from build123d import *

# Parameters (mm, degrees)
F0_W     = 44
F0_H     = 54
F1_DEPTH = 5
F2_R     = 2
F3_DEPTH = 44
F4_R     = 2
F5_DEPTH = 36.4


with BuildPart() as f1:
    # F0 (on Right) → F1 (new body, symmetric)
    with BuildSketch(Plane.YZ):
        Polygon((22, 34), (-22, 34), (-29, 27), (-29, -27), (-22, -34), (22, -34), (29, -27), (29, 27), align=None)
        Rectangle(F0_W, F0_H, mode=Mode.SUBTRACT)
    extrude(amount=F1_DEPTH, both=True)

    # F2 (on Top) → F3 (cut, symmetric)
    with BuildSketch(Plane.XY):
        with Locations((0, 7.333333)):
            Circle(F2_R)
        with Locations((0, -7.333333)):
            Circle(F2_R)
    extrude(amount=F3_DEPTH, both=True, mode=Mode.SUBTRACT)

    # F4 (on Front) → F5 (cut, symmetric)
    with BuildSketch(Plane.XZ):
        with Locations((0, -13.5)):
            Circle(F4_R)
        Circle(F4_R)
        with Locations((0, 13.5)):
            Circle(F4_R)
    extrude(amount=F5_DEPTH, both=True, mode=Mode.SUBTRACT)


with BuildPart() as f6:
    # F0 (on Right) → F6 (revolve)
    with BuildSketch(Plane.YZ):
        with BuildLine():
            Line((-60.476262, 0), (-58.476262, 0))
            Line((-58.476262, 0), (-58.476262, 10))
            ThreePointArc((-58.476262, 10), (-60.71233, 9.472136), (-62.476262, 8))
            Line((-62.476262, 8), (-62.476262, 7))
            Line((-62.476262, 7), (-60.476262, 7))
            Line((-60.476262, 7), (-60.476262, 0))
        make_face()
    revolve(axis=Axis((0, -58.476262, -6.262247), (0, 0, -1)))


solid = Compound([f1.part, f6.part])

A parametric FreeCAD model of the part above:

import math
import FreeCAD as App
import Part
import Sketcher
Q = App.Units.Quantity

doc = App.newDocument("Part")
body = doc.addObject("PartDesign::Body", "Body")

# Sketch on YZ plane
sketch1 = body.newObject("Sketcher::SketchObject", "Sketch")
sketch1.AttachmentSupport = (doc.getObject("YZ_Plane"), [""])
sketch1.MapMode = "FlatFace"
sketch1.addGeometry(Part.LineSegment(App.Vector(22, 34, 0), App.Vector(-22, 34, 0)), False)
sketch1.addGeometry(Part.LineSegment(App.Vector(-22, 34, 0), App.Vector(-29, 27, 0)), False)
sketch1.addGeometry(Part.LineSegment(App.Vector(-29, 27, 0), App.Vector(-29, -27, 0)), False)
sketch1.addGeometry(Part.LineSegment(App.Vector(-29, -27, 0), App.Vector(-22, -34, 0)), False)
sketch1.addGeometry(Part.LineSegment(App.Vector(-22, -34, 0), App.Vector(22, -34, 0)), False)
sketch1.addGeometry(Part.LineSegment(App.Vector(22, -34, 0), App.Vector(29, -27, 0)), False)
sketch1.addGeometry(Part.LineSegment(App.Vector(29, -27, 0), App.Vector(29, 27, 0)), False)
sketch1.addGeometry(Part.LineSegment(App.Vector(29, 27, 0), App.Vector(22, 34, 0)), False)
sketch1.addGeometry(Part.LineSegment(App.Vector(22, -27, 0), App.Vector(-22, -27, 0)), False)
sketch1.addGeometry(Part.LineSegment(App.Vector(-22, -27, 0), App.Vector(-22, 27, 0)), False)
sketch1.addGeometry(Part.LineSegment(App.Vector(-22, 27, 0), App.Vector(22, 27, 0)), False)
sketch1.addGeometry(Part.LineSegment(App.Vector(22, 27, 0), App.Vector(22, -27, 0)), False)
sketch1.addConstraint(Sketcher.Constraint("Coincident", 0, 2, 1, 1))
sketch1.addConstraint(Sketcher.Constraint("Coincident", 1, 2, 2, 1))
sketch1.addConstraint(Sketcher.Constraint("Coincident", 2, 2, 3, 1))
sketch1.addConstraint(Sketcher.Constraint("Coincident", 3, 2, 4, 1))
sketch1.addConstraint(Sketcher.Constraint("Coincident", 4, 2, 5, 1))
sketch1.addConstraint(Sketcher.Constraint("Coincident", 5, 2, 6, 1))
sketch1.addConstraint(Sketcher.Constraint("Coincident", 6, 2, 7, 1))
sketch1.addConstraint(Sketcher.Constraint("Coincident", 7, 2, 0, 1))
sketch1.addConstraint(Sketcher.Constraint("Coincident", 8, 2, 9, 1))
sketch1.addConstraint(Sketcher.Constraint("Coincident", 9, 2, 10, 1))
sketch1.addConstraint(Sketcher.Constraint("Coincident", 10, 2, 11, 1))
sketch1.addConstraint(Sketcher.Constraint("Coincident", 11, 2, 8, 1))
sketch1.addConstraint(Sketcher.Constraint("Horizontal", 0))
sketch1.addConstraint(Sketcher.Constraint("Vertical", 2))
sketch1.addConstraint(Sketcher.Constraint("Horizontal", 4))
sketch1.addConstraint(Sketcher.Constraint("Vertical", 6))
sketch1.addConstraint(Sketcher.Constraint("Horizontal", 8))
sketch1.addConstraint(Sketcher.Constraint("Vertical", 9))
sketch1.addConstraint(Sketcher.Constraint("Horizontal", 10))
sketch1.addConstraint(Sketcher.Constraint("Vertical", 11))
sketch1.addConstraint(Sketcher.Constraint("Symmetric", 0, 2, 4, 2, -1, 1))
sketch1.addConstraint(Sketcher.Constraint("Symmetric", 1, 2, 5, 2, -1, 1))
sketch1.addConstraint(Sketcher.Constraint("Symmetric", 8, 2, 10, 2, -1, 1))
sketch1.addConstraint(Sketcher.Constraint("Perpendicular", 1, 3))
sketch1.addConstraint(Sketcher.Constraint("Perpendicular", 5, 7))
sketch1.addConstraint(Sketcher.Constraint("Horizontal", 2, 2, 5, 2))
sketch1.addConstraint(Sketcher.Constraint("Horizontal", 1, 2, 6, 2))
sketch1.addConstraint(Sketcher.Constraint("Horizontal", 5, 2, 8, 2))
sketch1.addConstraint(Sketcher.Constraint("Vertical", 0, 2, 3, 2))
sketch1.addConstraint(Sketcher.Constraint("Vertical", 3, 2, 8, 2))
sketch1.addConstraint(Sketcher.Constraint("DistanceX", 0, 2, 0, 1, Q("44 mm")))
sketch1.addConstraint(Sketcher.Constraint("DistanceY", 2, 2, 2, 1, Q("54 mm")))
sketch1.addConstraint(Sketcher.Constraint("DistanceY", -1, 1, 0, 2, Q("34 mm")))
pad1 = body.newObject("PartDesign::Pad", "Pad")
pad1.Profile = sketch1
pad1.Length = 10
pad1.Midplane = True

# Sketch on XY plane
sketch2 = body.newObject("Sketcher::SketchObject", "Sketch001")
sketch2.AttachmentSupport = (doc.getObject("XY_Plane"), [""])
sketch2.MapMode = "FlatFace"
sketch2.addGeometry(Part.Circle(App.Vector(0, 7.333333, 0), App.Vector(0, 0, 1), 2), False)
sketch2.addGeometry(Part.Circle(App.Vector(0, -7.333333, 0), App.Vector(0, 0, 1), 2), False)
sketch2.addConstraint(Sketcher.Constraint("Equal", 0, 1))
sketch2.addConstraint(Sketcher.Constraint("Symmetric", 0, 3, 1, 3, -1, 1))
sketch2.addConstraint(Sketcher.Constraint("PointOnObject", 0, 3, -2))
sketch2.addConstraint(Sketcher.Constraint("Diameter", 0, Q("4 mm")))
sketch2.addConstraint(Sketcher.Constraint("DistanceY", -1, 1, 0, 3, Q("7.333333 mm")))
pocket1 = body.newObject("PartDesign::Pocket", "Pocket")
pocket1.Profile = sketch2
pocket1.Length = 88
pocket1.Midplane = True

# Sketch on XZ plane
sketch3 = body.newObject("Sketcher::SketchObject", "Sketch002")
sketch3.AttachmentSupport = (doc.getObject("XZ_Plane"), [""])
sketch3.MapMode = "FlatFace"
sketch3.addGeometry(Part.Circle(App.Vector(0, -13.5, 0), App.Vector(0, 0, 1), 2), False)
sketch3.addGeometry(Part.Circle(App.Vector(0, 0, 0), App.Vector(0, 0, 1), 2), False)
sketch3.addGeometry(Part.Circle(App.Vector(0, 13.5, 0), App.Vector(0, 0, 1), 2), False)
sketch3.addConstraint(Sketcher.Constraint("Coincident", 1, 3, -1, 1))
sketch3.addConstraint(Sketcher.Constraint("Equal", 0, 1))
sketch3.addConstraint(Sketcher.Constraint("Equal", 1, 2))
sketch3.addConstraint(Sketcher.Constraint("Symmetric", 0, 3, 2, 3, -1, 1))
sketch3.addConstraint(Sketcher.Constraint("PointOnObject", 0, 3, -2))
sketch3.addConstraint(Sketcher.Constraint("Diameter", 0, Q("4 mm")))
sketch3.addConstraint(Sketcher.Constraint("DistanceY", 0, 3, 2, 3, Q("27 mm")))
pocket2 = body.newObject("PartDesign::Pocket", "Pocket001")
pocket2.Profile = sketch3
pocket2.Length = 72.8
pocket2.Midplane = True
body2 = doc.addObject("PartDesign::Body", "Body001")

# Sketch on YZ plane
sketch4 = body2.newObject("Sketcher::SketchObject", "Sketch003")
sketch4.AttachmentSupport = (doc.getObject("YZ_Plane001"), [""])
sketch4.MapMode = "FlatFace"
sketch4.addGeometry(Part.LineSegment(App.Vector(-60.476262, 0, 0), App.Vector(-58.476262, 0, 0)), False)
sketch4.addGeometry(Part.LineSegment(App.Vector(-58.476262, 0, 0), App.Vector(-58.476262, 10, 0)), False)
sketch4.addGeometry(Part.ArcOfCircle(Part.Circle(App.Vector(-58.476262, 5, 0), App.Vector(0, 0, 1), 5), math.radians(89.999998), math.radians(143.130105)), False)
sketch4.addGeometry(Part.LineSegment(App.Vector(-62.476262, 8, 0), App.Vector(-62.476262, 7, 0)), False)
sketch4.addGeometry(Part.LineSegment(App.Vector(-62.476262, 7, 0), App.Vector(-60.476262, 7, 0)), False)
sketch4.addGeometry(Part.LineSegment(App.Vector(-60.476262, 7, 0), App.Vector(-60.476262, 0, 0)), False)
sketch4.addGeometry(Part.LineSegment(App.Vector(-58.476262, 10, 0), App.Vector(-58.476262, 0, 0)), True)  # axis
sketch4.addConstraint(Sketcher.Constraint("Coincident", 0, 2, 1, 1))
sketch4.addConstraint(Sketcher.Constraint("Coincident", 1, 2, 2, 1))
sketch4.addConstraint(Sketcher.Constraint("Coincident", 2, 2, 3, 1))
sketch4.addConstraint(Sketcher.Constraint("Coincident", 3, 2, 4, 1))
sketch4.addConstraint(Sketcher.Constraint("Coincident", 4, 2, 5, 1))
sketch4.addConstraint(Sketcher.Constraint("Coincident", 5, 2, 0, 1))
sketch4.addConstraint(Sketcher.Constraint("Horizontal", 0))
sketch4.addConstraint(Sketcher.Constraint("Vertical", 1))
sketch4.addConstraint(Sketcher.Constraint("Vertical", 3))
sketch4.addConstraint(Sketcher.Constraint("Horizontal", 4))
sketch4.addConstraint(Sketcher.Constraint("Vertical", 5))
sketch4.addConstraint(Sketcher.Constraint("Vertical", 6))
sketch4.addConstraint(Sketcher.Constraint("Coincident", 6, 1, 1, 2))
sketch4.addConstraint(Sketcher.Constraint("PointOnObject", 0, 2, -1))
sketch4.addConstraint(Sketcher.Constraint("PointOnObject", 6, 2, -1))
sketch4.addConstraint(Sketcher.Constraint("Vertical", 2, 3, 0, 2))
sketch4.addConstraint(Sketcher.Constraint("Equal", 0, 4))
sketch4.addConstraint(Sketcher.Constraint("Radius", 2, Q("5 mm")))
sketch4.addConstraint(Sketcher.Constraint("DistanceX", 0, 1, 0, 2, Q("2 mm")))
sketch4.addConstraint(Sketcher.Constraint("DistanceY", 1, 1, 1, 2, Q("10 mm")))
sketch4.addConstraint(Sketcher.Constraint("DistanceY", 3, 2, 3, 1, Q("1 mm")))
sketch4.addConstraint(Sketcher.Constraint("DistanceX", 0, 2, -1, 1, Q("58.476262 mm")))
revolution = body2.newObject("PartDesign::Revolution", "Revolution")
revolution.Profile = sketch4
revolution.ReferenceAxis = (sketch4, ["Axis0"])
revolution.Angle = 360

doc.recompute()
